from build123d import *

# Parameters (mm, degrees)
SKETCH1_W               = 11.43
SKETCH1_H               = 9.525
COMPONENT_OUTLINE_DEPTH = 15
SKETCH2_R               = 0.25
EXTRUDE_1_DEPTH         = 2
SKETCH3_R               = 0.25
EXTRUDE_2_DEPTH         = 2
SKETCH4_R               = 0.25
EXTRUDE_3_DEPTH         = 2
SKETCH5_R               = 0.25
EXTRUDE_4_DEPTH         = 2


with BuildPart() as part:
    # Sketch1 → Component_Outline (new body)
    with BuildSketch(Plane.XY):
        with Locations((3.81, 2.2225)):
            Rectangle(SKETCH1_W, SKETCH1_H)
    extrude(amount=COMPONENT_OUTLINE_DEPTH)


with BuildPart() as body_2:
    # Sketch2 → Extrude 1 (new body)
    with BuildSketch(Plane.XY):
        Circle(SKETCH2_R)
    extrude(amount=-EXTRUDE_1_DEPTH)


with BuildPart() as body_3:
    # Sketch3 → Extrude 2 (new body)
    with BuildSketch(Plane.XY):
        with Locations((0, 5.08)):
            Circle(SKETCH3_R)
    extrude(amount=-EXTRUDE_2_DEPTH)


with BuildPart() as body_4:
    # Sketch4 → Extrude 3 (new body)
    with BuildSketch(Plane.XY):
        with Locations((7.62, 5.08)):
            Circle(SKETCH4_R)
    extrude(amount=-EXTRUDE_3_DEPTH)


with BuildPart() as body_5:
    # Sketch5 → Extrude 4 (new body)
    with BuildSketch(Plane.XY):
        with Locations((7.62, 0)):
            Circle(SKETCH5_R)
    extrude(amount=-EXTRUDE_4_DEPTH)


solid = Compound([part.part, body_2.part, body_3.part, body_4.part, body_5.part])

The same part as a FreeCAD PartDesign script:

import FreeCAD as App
import Part
import Sketcher

V = App.Vector
Q = App.Units.Quantity


def add_polygon(sketch, points):
    """Adds a closed chain of lines whose ends are joined by coincident constraints."""
    first, n = sketch.GeometryCount, len(points)
    for a, b in zip(points, points[1:] + points[:1]):
        sketch.addGeometry(Part.LineSegment(App.Vector(*a, 0), App.Vector(*b, 0)), False)
    for i in range(n):
        sketch.addConstraint(Sketcher.Constraint("Coincident", first + i, 2, first + (i + 1) % n, 1))

doc = App.newDocument("Part")
body = doc.addObject("PartDesign::Body", "Body")

# Sketch on XY plane
sketch1 = doc.addObject("Sketcher::SketchObject", "Sketch")
body.addObject(sketch1)
sketch1.AttachmentSupport = (doc.XY_Plane, [""])
sketch1.MapMode = "FlatFace"
add_polygon(sketch1, [(-1.905, 6.985), (-1.905, -2.54), (9.525, -2.54), (9.525, 6.985)])  # lines 0-3
sketch1.addConstraint(Sketcher.Constraint("Vertical", 0))
sketch1.addConstraint(Sketcher.Constraint("Horizontal", 1))
sketch1.addConstraint(Sketcher.Constraint("Vertical", 2))
sketch1.addConstraint(Sketcher.Constraint("Horizontal", 3))
sketch1.addConstraint(Sketcher.Constraint("DistanceX", 1, 1, 1, 2, Q("11.43 mm")))
sketch1.addConstraint(Sketcher.Constraint("DistanceY", 0, 2, 0, 1, Q("9.525 mm")))
sketch1.addConstraint(Sketcher.Constraint("DistanceY", 0, 2, -1, 1, Q("2.54 mm")))
sketch1.addConstraint(Sketcher.Constraint("DistanceX", 0, 2, -1, 1, Q("1.905 mm")))
pad1 = doc.addObject("PartDesign::Pad", "Pad")
body.addObject(pad1)
pad1.Profile = sketch1
pad1.Length = 15
body2 = doc.addObject("PartDesign::Body", "Body001")

# Sketch on XY plane
sketch2 = doc.addObject("Sketcher::SketchObject", "Sketch001")
body2.addObject(sketch2)
sketch2.AttachmentSupport = (doc.getObject("XY_Plane001"), [""])
sketch2.MapMode = "FlatFace"
sketch2.addGeometry(Part.Circle(V(0, 0, 0), V(0, 0, 1), 0.25), False)
sketch2.addConstraint(Sketcher.Constraint("Coincident", 0, 3, -1, 1))
sketch2.addConstraint(Sketcher.Constraint("Diameter", 0, Q("0.5 mm")))
pad2 = doc.addObject("PartDesign::Pad", "Pad001")
body2.addObject(pad2)
pad2.Profile = sketch2
pad2.Length = 2
pad2.Reversed = True
body3 = doc.addObject("PartDesign::Body", "Body002")

# Sketch on XY plane
sketch3 = doc.addObject("Sketcher::SketchObject", "Sketch002")
body3.addObject(sketch3)
sketch3.AttachmentSupport = (doc.getObject("XY_Plane002"), [""])
sketch3.MapMode = "FlatFace"
sketch3.addGeometry(Part.Circle(V(0, 5.08, 0), V(0, 0, 1), 0.25), False)
sketch3.addConstraint(Sketcher.Constraint("PointOnObject", 0, 3, -2))
sketch3.addConstraint(Sketcher.Constraint("Diameter", 0, Q("0.5 mm")))
sketch3.addConstraint(Sketcher.Constraint("DistanceY", -1, 1, 0, 3, Q("5.08 mm")))
pad3 = doc.addObject("PartDesign::Pad", "Pad002")
body3.addObject(pad3)
pad3.Profile = sketch3
pad3.Length = 2
pad3.Reversed = True
body4 = doc.addObject("PartDesign::Body", "Body003")

# Sketch on XY plane
sketch4 = doc.addObject("Sketcher::SketchObject", "Sketch003")
body4.addObject(sketch4)
sketch4.AttachmentSupport = (doc.getObject("XY_Plane003"), [""])
sketch4.MapMode = "FlatFace"
sketch4.addGeometry(Part.Circle(V(7.62, 5.08, 0), V(0, 0, 1), 0.25), False)
sketch4.addConstraint(Sketcher.Constraint("Diameter", 0, Q("0.5 mm")))
sketch4.addConstraint(Sketcher.Constraint("DistanceX", -1, 1, 0, 3, Q("7.62 mm")))
sketch4.addConstraint(Sketcher.Constraint("DistanceY", -1, 1, 0, 3, Q("5.08 mm")))
pad4 = doc.addObject("PartDesign::Pad", "Pad003")
body4.addObject(pad4)
pad4.Profile = sketch4
pad4.Length = 2
pad4.Reversed = True
body5 = doc.addObject("PartDesign::Body", "Body004")

# Sketch on XY plane
sketch5 = doc.addObject("Sketcher::SketchObject", "Sketch004")
body5.addObject(sketch5)
sketch5.AttachmentSupport = (doc.getObject("XY_Plane004"), [""])
sketch5.MapMode = "FlatFace"
sketch5.addGeometry(Part.Circle(V(7.62, 0, 0), V(0, 0, 1), 0.25), False)
sketch5.addConstraint(Sketcher.Constraint("PointOnObject", 0, 3, -1))
sketch5.addConstraint(Sketcher.Constraint("Diameter", 0, Q("0.5 mm")))
sketch5.addConstraint(Sketcher.Constraint("DistanceX", -1, 1, 0, 3, Q("7.62 mm")))
pad5 = doc.addObject("PartDesign::Pad", "Pad004")
body5.addObject(pad5)
pad5.Profile = sketch5
pad5.Length = 2
pad5.Reversed = True

doc.recompute()
